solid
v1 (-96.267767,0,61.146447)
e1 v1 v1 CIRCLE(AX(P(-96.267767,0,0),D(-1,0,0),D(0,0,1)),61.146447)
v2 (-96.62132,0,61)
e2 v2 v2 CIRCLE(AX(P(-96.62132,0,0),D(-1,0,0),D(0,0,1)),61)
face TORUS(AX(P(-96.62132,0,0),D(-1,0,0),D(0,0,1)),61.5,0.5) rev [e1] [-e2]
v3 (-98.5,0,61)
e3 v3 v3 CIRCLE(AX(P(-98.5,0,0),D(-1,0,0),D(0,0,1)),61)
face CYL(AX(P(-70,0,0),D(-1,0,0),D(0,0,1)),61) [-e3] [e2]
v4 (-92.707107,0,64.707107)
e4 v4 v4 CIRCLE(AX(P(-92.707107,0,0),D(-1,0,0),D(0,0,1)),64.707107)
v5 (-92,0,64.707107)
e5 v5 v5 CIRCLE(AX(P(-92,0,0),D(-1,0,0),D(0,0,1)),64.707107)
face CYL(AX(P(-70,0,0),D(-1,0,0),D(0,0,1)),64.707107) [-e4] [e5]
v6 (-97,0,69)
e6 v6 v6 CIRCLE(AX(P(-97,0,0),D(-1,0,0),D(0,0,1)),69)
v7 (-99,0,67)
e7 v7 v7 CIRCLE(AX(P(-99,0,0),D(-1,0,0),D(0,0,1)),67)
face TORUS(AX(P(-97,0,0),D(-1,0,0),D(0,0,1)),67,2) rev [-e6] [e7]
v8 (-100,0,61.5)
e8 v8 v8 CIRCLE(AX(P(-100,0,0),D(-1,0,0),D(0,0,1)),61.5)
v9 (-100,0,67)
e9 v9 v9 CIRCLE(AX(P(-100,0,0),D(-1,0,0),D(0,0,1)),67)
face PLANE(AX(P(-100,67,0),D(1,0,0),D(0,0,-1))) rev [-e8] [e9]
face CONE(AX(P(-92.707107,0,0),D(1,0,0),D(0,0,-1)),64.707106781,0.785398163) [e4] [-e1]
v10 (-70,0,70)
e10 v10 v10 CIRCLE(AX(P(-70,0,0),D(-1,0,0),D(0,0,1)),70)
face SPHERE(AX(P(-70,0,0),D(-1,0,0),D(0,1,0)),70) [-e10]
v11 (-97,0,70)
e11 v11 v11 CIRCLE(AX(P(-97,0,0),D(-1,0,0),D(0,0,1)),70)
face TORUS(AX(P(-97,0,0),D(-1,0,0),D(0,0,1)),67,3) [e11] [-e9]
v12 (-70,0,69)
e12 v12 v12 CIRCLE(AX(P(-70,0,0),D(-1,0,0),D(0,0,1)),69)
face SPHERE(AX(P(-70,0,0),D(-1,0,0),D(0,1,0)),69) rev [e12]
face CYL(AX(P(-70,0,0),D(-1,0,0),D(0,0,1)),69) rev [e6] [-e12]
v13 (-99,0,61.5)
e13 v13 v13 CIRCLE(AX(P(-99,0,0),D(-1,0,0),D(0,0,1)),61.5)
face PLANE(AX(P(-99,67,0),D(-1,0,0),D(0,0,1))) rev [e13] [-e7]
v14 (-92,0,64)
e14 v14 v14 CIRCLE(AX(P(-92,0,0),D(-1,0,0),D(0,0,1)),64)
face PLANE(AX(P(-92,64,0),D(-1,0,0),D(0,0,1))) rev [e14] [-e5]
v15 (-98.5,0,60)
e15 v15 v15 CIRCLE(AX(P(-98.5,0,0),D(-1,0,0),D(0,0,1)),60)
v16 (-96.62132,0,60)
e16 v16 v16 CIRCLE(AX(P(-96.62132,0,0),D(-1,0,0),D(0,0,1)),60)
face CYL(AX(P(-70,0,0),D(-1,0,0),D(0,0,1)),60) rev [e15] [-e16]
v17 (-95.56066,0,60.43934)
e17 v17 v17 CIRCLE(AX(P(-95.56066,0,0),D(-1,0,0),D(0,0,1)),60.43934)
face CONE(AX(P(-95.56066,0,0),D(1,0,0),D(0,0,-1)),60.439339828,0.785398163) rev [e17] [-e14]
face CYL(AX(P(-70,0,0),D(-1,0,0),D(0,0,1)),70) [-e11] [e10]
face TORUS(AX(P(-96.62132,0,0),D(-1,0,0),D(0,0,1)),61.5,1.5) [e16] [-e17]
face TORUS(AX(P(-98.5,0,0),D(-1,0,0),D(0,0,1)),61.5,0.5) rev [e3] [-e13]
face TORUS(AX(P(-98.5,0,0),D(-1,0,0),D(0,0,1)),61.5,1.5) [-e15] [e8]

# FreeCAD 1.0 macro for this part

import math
import FreeCAD as App
import Part
import Sketcher
Q = App.Units.Quantity

doc = App.newDocument("Part")
body = doc.addObject("PartDesign::Body", "Body")

# Sketch on XY plane
sketch1 = doc.addObject("Sketcher::SketchObject", "Sketch")
body.addObject(sketch1)
sketch1.AttachmentSupport = (doc.XY_Plane, [""])
sketch1.MapMode = "FlatFace"
sketch1.addGeometry([
    Part.LineSegment(App.Vector(-70, 70, 0), App.Vector(-97, 70, 0)),  # 0
    Part.ArcOfCircle(Part.Circle(App.Vector(-97, 67, 0), App.Vector(0, 0, 1), 3), math.radians(90), math.radians(180)),  # 1
    Part.LineSegment(App.Vector(-100, 67, 0), App.Vector(-100, 61.5, 0)),  # 2
    Part.ArcOfCircle(Part.Circle(App.Vector(-98.5, 61.5, 0), App.Vector(0, 0, 1), 1.5), math.radians(180), math.radians(270)),  # 3
    Part.LineSegment(App.Vector(-98.5, 60, 0), App.Vector(-96.62, 60, 0)),  # 4
    Part.ArcOfCircle(Part.Circle(App.Vector(-96.62, 61.5, 0), App.Vector(0, 0, 1), 1.5), math.radians(-90), math.radians(-45)),  # 5
    Part.LineSegment(App.Vector(-95.56, 60.44, 0), App.Vector(-92, 64, 0)),  # 6
    Part.LineSegment(App.Vector(-92, 64, 0), App.Vector(-92, 64.71, 0)),  # 7
    Part.LineSegment(App.Vector(-92, 64.71, 0), App.Vector(-92.71, 64.71, 0)),  # 8
    Part.LineSegment(App.Vector(-92.71, 64.71, 0), App.Vector(-96.27, 61.15, 0)),  # 9
    Part.ArcOfCircle(Part.Circle(App.Vector(-96.62, 61.5, 0), App.Vector(0, 0, 1), 0.5), math.radians(-90), math.radians(-45)),  # 10
    Part.LineSegment(App.Vector(-96.62, 61, 0), App.Vector(-98.5, 61, 0)),  # 11
    Part.ArcOfCircle(Part.Circle(App.Vector(-98.5, 61.5, 0), App.Vector(0, 0, 1), 0.5), math.radians(180), math.radians(270)),  # 12
    Part.LineSegment(App.Vector(-99, 61.5, 0), App.Vector(-99, 67, 0)),  # 13
    Part.ArcOfCircle(Part.Circle(App.Vector(-97, 67, 0), App.Vector(0, 0, 1), 2), math.radians(90), math.radians(180)),  # 14
    Part.LineSegment(App.Vector(-97, 69, 0), App.Vector(-70, 69, 0)),  # 15
    Part.ArcOfCircle(Part.Circle(App.Vector(-70, 0, 0), App.Vector(0, 0, 1), 69), math.radians(0), math.radians(90)),  # 16
    Part.LineSegment(App.Vector(-1, 0, 0), App.Vector(0, 0, 0)),  # 17
    Part.ArcOfCircle(Part.Circle(App.Vector(-70, 0, 0), App.Vector(0, 0, 1), 70), math.radians(0), math.radians(90)),  # 18
], False)
sketch1.addConstraint([
    Sketcher.Constraint("Tangent", 0, 2, 1, 1),
    Sketcher.Constraint("Tangent", 1, 2, 2, 1),
    Sketcher.Constraint("Tangent", 2, 2, 3, 1),
    Sketcher.Constraint("Tangent", 3, 2, 4, 1),
    Sketcher.Constraint("Tangent", 4, 2, 5, 1),
    Sketcher.Constraint("Tangent", 5, 2, 6, 1),
    Sketcher.Constraint("Coincident", 6, 2, 7, 1),
    Sketcher.Constraint("Coincident", 7, 2, 8, 1),
    Sketcher.Constraint("Coincident", 8, 2, 9, 1),
    Sketcher.Constraint("Tangent", 9, 2, 10, 2),
    Sketcher.Constraint("Tangent", 10, 1, 11, 1),
    Sketcher.Constraint("Tangent", 11, 2, 12, 2),
    Sketcher.Constraint("Tangent", 12, 1, 13, 1),
    Sketcher.Constraint("Tangent", 13, 2, 14, 2),
    Sketcher.Constraint("Tangent", 14, 1, 15, 1),
    Sketcher.Constraint("Tangent", 15, 2, 16, 2),
    Sketcher.Constraint("Coincident", 16, 1, 17, 1),
    Sketcher.Constraint("Coincident", 17, 2, 18, 1),
    Sketcher.Constraint("Tangent", 18, 2, 0, 1),
    Sketcher.Constraint("Horizontal", 0),
    Sketcher.Constraint("Vertical", 2),
    Sketcher.Constraint("Horizontal", 4),
    Sketcher.Constraint("Vertical", 7),
    Sketcher.Constraint("Horizontal", 8),
    Sketcher.Constraint("Horizontal", 11),
    Sketcher.Constraint("Vertical", 13),
    Sketcher.Constraint("Horizontal", 15),
    Sketcher.Constraint("Horizontal", 17),
    Sketcher.Constraint("Coincident", 17, 2, -1, 1),
    Sketcher.Constraint("Coincident", 10, 3, 5, 3),
    Sketcher.Constraint("Coincident", 12, 3, 3, 3),
    Sketcher.Constraint("Coincident", 14, 3, 1, 3),
    Sketcher.Constraint("Coincident", 18, 3, 16, 3),
    Sketcher.Constraint("Equal", 3, 5),
    Sketcher.Constraint("PointOnObject", 16, 3, -1),
    Sketcher.Constraint("Parallel", 6, 9),
    Sketcher.Constraint("Equal", 8, 7),
    Sketcher.Constraint("Equal", 6, 9),
    Sketcher.Constraint("Radius", 1, Q("3 mm")),
    Sketcher.Constraint("Radius", 14, Q("2 mm")),
    Sketcher.Constraint("Radius", 16, Q("69 mm")),
    Sketcher.Constraint("Radius", 3, Q("1.5 mm")),
    Sketcher.Constraint("DistanceX", 0, 2, 0, 1, Q("27 mm")),
    Sketcher.Constraint("DistanceY", 2, 2, 2, 1, Q("5.5 mm")),
    Sketcher.Constraint("DistanceX", 6, 2, -1, 1, Q("92 mm")),
    Sketcher.Constraint("DistanceY", -1, 1, 6, 2, Q("64 mm")),
])
revolution = doc.addObject("PartDesign::Revolution", "Revolution")
body.addObject(revolution)
revolution.Profile = sketch1
revolution.ReferenceAxis = (sketch1, ["H_Axis"])
revolution.Angle = 360

doc.recompute()
